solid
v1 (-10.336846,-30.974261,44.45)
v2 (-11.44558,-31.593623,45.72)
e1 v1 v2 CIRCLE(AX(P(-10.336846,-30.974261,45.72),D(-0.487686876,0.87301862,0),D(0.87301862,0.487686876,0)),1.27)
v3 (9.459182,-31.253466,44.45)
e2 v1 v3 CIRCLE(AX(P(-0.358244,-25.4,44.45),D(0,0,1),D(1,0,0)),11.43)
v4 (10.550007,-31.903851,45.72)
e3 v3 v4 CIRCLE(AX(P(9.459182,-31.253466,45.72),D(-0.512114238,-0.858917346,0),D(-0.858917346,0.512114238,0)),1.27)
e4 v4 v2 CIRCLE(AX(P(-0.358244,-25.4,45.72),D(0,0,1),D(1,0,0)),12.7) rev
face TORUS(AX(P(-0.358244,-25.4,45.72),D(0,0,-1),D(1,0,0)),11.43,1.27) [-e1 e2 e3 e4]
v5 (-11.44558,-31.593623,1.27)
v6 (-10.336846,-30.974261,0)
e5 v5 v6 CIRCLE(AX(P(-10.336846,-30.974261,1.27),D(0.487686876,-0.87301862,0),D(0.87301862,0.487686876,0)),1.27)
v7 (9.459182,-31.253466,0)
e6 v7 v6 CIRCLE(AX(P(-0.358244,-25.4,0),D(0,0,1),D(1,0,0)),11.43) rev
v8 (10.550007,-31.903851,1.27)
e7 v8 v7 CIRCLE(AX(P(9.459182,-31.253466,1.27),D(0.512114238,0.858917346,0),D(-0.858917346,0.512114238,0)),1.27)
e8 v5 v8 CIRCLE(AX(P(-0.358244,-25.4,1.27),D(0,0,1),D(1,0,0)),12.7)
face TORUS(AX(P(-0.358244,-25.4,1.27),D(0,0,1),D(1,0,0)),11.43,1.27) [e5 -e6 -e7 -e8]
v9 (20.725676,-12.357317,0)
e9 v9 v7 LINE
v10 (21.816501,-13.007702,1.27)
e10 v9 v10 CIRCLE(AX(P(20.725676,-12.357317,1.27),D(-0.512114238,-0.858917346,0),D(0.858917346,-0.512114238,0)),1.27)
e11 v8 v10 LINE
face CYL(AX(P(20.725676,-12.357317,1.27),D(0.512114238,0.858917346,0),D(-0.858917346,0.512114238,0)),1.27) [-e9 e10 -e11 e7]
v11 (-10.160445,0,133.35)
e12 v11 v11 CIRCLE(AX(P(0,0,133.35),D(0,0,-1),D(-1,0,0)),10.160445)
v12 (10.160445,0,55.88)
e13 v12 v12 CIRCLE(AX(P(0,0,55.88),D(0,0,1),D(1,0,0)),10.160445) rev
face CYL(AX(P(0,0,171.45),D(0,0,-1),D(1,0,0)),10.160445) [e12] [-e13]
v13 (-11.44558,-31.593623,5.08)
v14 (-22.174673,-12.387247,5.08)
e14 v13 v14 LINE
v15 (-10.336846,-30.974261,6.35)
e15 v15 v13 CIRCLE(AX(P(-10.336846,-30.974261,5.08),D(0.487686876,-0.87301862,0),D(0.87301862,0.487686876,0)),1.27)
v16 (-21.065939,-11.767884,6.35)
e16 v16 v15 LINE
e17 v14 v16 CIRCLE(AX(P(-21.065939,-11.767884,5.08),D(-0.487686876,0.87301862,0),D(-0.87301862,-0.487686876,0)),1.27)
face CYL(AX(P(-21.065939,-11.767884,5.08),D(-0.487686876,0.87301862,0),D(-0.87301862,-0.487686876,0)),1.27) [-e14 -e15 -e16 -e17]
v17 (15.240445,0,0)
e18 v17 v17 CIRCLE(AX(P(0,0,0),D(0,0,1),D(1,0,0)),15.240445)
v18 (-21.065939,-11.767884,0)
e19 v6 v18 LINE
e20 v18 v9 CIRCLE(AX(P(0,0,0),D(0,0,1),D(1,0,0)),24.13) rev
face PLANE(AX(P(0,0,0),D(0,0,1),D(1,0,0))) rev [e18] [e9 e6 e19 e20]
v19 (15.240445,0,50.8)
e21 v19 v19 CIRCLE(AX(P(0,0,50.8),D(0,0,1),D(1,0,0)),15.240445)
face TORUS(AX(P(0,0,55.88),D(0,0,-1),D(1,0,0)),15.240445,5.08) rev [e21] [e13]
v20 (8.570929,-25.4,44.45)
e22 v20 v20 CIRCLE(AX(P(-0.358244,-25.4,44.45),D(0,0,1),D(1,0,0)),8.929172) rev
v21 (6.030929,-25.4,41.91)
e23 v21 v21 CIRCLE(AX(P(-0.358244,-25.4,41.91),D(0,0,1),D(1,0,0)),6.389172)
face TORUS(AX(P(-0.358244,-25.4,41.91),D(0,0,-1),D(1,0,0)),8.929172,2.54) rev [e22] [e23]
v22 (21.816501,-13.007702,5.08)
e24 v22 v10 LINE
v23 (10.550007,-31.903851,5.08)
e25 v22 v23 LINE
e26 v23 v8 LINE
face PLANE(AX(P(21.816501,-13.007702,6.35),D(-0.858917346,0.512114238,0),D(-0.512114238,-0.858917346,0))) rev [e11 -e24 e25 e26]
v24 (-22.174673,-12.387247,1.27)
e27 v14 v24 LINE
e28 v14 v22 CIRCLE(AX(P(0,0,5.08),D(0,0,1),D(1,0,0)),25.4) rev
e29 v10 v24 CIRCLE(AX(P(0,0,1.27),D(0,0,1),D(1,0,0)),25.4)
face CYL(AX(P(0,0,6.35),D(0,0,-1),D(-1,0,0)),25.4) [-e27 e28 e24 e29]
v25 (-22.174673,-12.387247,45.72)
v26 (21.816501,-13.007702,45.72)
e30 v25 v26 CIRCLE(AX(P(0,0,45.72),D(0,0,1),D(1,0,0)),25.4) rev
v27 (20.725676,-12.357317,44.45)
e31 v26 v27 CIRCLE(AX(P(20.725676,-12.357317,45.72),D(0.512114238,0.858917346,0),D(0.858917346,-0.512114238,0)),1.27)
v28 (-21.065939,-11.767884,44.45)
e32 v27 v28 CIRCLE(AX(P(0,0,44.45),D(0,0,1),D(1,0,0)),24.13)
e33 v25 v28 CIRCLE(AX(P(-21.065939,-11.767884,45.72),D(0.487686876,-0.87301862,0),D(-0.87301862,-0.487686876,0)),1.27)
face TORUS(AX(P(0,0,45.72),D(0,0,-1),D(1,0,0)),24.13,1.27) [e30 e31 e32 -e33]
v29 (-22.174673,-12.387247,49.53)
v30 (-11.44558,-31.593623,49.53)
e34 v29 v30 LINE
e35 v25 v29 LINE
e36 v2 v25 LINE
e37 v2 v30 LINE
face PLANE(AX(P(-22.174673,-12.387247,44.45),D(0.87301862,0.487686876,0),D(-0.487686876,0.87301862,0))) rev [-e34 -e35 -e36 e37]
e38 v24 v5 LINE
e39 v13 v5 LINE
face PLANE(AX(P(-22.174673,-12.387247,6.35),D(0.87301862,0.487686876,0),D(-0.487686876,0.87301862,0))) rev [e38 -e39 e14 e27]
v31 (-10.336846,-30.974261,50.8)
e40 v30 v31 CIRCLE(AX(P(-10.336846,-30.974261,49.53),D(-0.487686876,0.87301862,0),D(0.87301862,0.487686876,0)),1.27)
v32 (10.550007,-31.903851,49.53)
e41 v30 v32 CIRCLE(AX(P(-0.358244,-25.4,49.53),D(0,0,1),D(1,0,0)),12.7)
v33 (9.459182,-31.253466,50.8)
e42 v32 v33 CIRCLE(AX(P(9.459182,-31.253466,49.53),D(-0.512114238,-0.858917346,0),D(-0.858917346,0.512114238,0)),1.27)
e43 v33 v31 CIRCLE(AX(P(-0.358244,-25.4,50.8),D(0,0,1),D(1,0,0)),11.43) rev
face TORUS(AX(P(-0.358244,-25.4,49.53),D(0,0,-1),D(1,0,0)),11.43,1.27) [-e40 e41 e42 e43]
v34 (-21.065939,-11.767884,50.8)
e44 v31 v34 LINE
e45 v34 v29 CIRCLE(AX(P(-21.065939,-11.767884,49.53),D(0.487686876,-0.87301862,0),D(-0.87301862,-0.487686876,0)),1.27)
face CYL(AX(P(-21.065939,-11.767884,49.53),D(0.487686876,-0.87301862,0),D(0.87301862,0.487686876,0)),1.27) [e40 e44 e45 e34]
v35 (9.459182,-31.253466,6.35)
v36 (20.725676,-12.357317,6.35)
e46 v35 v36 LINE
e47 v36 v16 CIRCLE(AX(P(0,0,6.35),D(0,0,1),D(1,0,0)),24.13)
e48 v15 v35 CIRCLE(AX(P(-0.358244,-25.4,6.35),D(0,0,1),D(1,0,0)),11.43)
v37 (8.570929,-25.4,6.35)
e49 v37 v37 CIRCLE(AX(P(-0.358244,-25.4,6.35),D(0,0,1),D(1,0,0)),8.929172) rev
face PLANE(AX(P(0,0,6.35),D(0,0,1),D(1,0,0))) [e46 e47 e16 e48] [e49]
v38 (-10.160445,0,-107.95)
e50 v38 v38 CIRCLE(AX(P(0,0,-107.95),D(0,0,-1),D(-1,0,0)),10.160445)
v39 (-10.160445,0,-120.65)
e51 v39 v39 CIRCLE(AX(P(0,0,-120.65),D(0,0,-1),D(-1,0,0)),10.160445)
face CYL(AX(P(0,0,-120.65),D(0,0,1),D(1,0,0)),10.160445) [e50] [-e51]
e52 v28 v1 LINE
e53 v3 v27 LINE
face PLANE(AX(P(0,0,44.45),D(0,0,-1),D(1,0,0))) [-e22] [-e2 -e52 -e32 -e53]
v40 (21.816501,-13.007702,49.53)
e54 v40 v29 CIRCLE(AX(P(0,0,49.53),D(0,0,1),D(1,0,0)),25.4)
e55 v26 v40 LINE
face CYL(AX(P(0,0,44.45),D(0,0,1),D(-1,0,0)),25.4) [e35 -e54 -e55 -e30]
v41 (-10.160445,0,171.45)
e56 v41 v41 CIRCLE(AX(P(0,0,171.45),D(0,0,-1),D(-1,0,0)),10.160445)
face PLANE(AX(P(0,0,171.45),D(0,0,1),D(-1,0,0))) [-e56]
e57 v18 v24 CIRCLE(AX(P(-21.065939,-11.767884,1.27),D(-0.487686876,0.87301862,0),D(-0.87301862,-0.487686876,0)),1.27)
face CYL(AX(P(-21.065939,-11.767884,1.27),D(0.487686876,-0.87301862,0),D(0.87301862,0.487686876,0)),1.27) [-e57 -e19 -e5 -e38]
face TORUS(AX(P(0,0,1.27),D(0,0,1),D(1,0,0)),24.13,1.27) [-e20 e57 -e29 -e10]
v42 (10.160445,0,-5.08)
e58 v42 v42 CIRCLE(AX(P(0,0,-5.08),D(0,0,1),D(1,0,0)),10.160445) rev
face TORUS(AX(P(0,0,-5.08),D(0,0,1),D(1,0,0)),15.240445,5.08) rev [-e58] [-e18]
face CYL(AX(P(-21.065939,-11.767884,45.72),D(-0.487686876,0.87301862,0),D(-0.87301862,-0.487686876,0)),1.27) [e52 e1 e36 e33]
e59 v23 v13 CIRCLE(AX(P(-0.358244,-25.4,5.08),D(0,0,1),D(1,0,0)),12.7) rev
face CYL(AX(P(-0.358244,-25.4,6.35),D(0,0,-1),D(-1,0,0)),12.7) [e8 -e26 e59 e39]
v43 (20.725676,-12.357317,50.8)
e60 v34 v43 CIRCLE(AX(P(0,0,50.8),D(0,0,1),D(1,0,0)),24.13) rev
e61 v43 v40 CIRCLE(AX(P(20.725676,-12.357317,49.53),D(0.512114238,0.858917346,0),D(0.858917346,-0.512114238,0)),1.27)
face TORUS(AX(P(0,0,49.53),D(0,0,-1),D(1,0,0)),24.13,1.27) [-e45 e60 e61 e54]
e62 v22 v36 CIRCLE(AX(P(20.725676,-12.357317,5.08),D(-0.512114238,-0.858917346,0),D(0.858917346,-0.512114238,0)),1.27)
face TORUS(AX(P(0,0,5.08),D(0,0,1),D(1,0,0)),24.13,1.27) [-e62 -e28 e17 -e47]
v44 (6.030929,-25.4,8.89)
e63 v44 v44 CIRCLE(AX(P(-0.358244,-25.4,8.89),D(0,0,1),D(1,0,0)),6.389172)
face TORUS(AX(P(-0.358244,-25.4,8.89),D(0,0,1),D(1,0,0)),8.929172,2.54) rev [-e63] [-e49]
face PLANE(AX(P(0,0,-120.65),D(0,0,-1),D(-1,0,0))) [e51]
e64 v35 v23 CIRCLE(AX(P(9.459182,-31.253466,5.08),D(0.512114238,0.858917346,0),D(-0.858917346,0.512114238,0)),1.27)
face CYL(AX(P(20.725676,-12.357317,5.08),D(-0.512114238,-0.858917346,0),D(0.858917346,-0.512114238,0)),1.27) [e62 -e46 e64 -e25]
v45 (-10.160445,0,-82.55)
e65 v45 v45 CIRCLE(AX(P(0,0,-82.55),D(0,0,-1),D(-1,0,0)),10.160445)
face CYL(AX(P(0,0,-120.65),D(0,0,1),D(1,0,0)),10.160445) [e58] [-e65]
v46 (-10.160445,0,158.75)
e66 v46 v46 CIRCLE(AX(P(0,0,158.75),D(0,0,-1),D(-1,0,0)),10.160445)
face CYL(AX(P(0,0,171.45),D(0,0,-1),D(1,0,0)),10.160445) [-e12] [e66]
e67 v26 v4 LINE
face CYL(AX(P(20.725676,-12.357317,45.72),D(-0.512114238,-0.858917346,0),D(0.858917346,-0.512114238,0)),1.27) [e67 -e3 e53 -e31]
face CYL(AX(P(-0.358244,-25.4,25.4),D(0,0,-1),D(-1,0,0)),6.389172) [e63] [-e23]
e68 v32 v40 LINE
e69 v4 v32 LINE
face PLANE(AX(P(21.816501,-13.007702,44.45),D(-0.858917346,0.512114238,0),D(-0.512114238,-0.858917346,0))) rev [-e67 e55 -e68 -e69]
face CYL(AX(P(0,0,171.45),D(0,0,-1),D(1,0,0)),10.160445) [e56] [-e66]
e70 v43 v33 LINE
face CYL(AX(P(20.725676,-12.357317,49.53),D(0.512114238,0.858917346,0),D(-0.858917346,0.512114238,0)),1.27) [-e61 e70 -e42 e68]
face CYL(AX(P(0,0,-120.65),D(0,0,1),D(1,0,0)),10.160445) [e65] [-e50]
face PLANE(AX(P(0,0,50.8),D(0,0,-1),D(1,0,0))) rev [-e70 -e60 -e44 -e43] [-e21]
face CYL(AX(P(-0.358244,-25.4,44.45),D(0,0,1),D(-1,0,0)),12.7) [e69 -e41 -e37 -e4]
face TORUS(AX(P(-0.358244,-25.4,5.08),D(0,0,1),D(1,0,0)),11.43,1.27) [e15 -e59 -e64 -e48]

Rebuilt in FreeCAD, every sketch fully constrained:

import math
import FreeCAD as App
import Part
import Sketcher
Q = App.Units.Quantity


def edges_at(feature, points):
    """Names of the edges that pass closest to the given points."""
    edges = feature.Shape.Edges
    near = lambda p: min(range(len(edges)), key=lambda i: edges[i].distToShape(Part.Vertex(*p))[0])
    return sorted({f"Edge{near(p) + 1}" for p in points})

doc = App.newDocument("Part")
body = doc.addObject("PartDesign::Body", "Body")

sketch1 = doc.addObject("Sketcher::SketchObject", "Sketch")
body.addObject(sketch1)
sketch1.AttachmentSupport = (doc.XY_Plane, [""])
sketch1.MapMode = "FlatFace"
sketch1.addGeometry(Part.LineSegment(App.Vector(-22.174673, -12.387247, 0), App.Vector(-11.44558, -31.593623, 0)), False)
sketch1.addGeometry(Part.ArcOfCircle(Part.Circle(App.Vector(-0.358244, -25.4, 0), App.Vector(0, 0, 1), 12.7), math.radians(-150.81134), math.radians(-30.804761)), False)
sketch1.addGeometry(Part.LineSegment(App.Vector(10.550007, -31.903851, 0), App.Vector(21.816501, -13.007702, 0)), False)
sketch1.addGeometry(Part.ArcOfCircle(Part.Circle(App.Vector(0, 0, 0), App.Vector(0, 0, 1), 25.4), math.radians(-30.804761), math.radians(209.18866)), False)
sketch1.addConstraint(Sketcher.Constraint("Tangent", 0, 2, 1, 1))
sketch1.addConstraint(Sketcher.Constraint("Tangent", 1, 2, 2, 1))
sketch1.addConstraint(Sketcher.Constraint("Tangent", 2, 2, 3, 1))
sketch1.addConstraint(Sketcher.Constraint("Tangent", 3, 2, 0, 1))
sketch1.addConstraint(Sketcher.Constraint("Coincident", 3, 3, -1, 1))
sketch1.addConstraint(Sketcher.Constraint("Radius", 3, Q("1 in")))
sketch1.addConstraint(Sketcher.Constraint("Radius", 1, Q("0.5 in")))
sketch1.addConstraint(Sketcher.Constraint("DistanceY", 1, 3, -1, 1, Q("1 in")))
sketch1.addConstraint(Sketcher.Constraint("DistanceX", -1, 1, 2, 2, Q("21.816501 mm")))
pad1 = doc.addObject("PartDesign::Pad", "Pad")
body.addObject(pad1)
pad1.Profile = sketch1
pad1.Length = Q("0.25 in")

sketch2 = doc.addObject("Sketcher::SketchObject", "Sketch001")
body.addObject(sketch2)
sketch2.AttachmentSupport = (doc.XY_Plane, [""])
sketch2.MapMode = "FlatFace"
sketch2.addGeometry(Part.Circle(App.Vector(0, 0, 0), App.Vector(0, 0, 1), 10.160445), False)
sketch2.addConstraint(Sketcher.Constraint("Coincident", 0, 3, -1, 1))
sketch2.addConstraint(Sketcher.Constraint("Diameter", 0, Q("20.32089 mm")))
pad2 = doc.addObject("PartDesign::Pad", "Pad001")
body.addObject(pad2)
pad2.Profile = sketch2
pad2.Length = Q("4.75 in")
pad2.Reversed = True

sketch3 = doc.addObject("Sketcher::SketchObject", "Sketch002")
body.addObject(sketch3)
sketch3.AttachmentSupport = (doc.XY_Plane, [""])
sketch3.MapMode = "FlatFace"
sketch3.AttachmentOffset = App.Placement(App.Vector(0, 0, 0.25 * 25.4), App.Rotation())
sketch3.addGeometry(Part.Circle(App.Vector(-0.358244, -25.4, 0), App.Vector(0, 0, 1), 6.389172), False)
sketch3.addConstraint(Sketcher.Constraint("DistanceY", 0, 3, -1, 1, Q("1 in")))
sketch3.addConstraint(Sketcher.Constraint("Diameter", 0, Q("12.778345 mm")))
sketch3.addConstraint(Sketcher.Constraint("DistanceX", 0, 3, -1, 1, Q("0.358244 mm")))
pad3 = doc.addObject("PartDesign::Pad", "Pad002")
body.addObject(pad3)
pad3.Profile = sketch3
pad3.Length = Q("0.75 in")
doc.recompute()

fillet = doc.addObject("PartDesign::Fillet", "Fillet")
body.addObject(fillet)
fillet.Base = (pad3, edges_at(pad3, [(-6.747, -25.4, 6.35)]))
fillet.Radius = Q("0.1 in")
doc.recompute()

fillet2 = doc.addObject("PartDesign::Fillet", "Fillet001")
body.addObject(fillet2)
fillet2.Base = (fillet, edges_at(fillet, [(10.16, 0, 0)]))
fillet2.Radius = Q("0.2 in")
doc.recompute()

fillet3 = doc.addObject("PartDesign::Fillet", "Fillet002")
body.addObject(fillet3)
fillet3.Base = (fillet2, edges_at(fillet2, [
    (-0.537, -38.099, 6.35),
    (16.183, -22.456, 6.35),
    (0.358, 25.397, 6.35),
    (16.183, -22.456, 0),
    (-0.537, -38.099, 0),
    (-16.81, -21.99, 0),
    (0.358, 25.397, 0),
    (-16.81, -21.99, 6.35),
]))
fillet3.Radius = Q("0.05 in")
body2 = doc.addObject("PartDesign::Body", "Body001")
doc.recompute()

body2.BaseFeature = body
doc.recompute()

mirroring = doc.addObject("Part::Mirroring", "Mirroring")
mirroring.Source = body
mirroring.Base = App.Vector(-0.358244, -25.4, 25.4)
mirroring.Normal = App.Vector(0, 0, 1)
body3 = doc.addObject("PartDesign::Body", "Body002")
body3.BaseFeature = mirroring
boolean = doc.addObject("PartDesign::Boolean", "Boolean")
body2.addObject(boolean)
boolean.Type = "Fuse"
boolean.addObjects([body3])
doc.recompute()
mirroring.Visibility = False

doc.recompute()
